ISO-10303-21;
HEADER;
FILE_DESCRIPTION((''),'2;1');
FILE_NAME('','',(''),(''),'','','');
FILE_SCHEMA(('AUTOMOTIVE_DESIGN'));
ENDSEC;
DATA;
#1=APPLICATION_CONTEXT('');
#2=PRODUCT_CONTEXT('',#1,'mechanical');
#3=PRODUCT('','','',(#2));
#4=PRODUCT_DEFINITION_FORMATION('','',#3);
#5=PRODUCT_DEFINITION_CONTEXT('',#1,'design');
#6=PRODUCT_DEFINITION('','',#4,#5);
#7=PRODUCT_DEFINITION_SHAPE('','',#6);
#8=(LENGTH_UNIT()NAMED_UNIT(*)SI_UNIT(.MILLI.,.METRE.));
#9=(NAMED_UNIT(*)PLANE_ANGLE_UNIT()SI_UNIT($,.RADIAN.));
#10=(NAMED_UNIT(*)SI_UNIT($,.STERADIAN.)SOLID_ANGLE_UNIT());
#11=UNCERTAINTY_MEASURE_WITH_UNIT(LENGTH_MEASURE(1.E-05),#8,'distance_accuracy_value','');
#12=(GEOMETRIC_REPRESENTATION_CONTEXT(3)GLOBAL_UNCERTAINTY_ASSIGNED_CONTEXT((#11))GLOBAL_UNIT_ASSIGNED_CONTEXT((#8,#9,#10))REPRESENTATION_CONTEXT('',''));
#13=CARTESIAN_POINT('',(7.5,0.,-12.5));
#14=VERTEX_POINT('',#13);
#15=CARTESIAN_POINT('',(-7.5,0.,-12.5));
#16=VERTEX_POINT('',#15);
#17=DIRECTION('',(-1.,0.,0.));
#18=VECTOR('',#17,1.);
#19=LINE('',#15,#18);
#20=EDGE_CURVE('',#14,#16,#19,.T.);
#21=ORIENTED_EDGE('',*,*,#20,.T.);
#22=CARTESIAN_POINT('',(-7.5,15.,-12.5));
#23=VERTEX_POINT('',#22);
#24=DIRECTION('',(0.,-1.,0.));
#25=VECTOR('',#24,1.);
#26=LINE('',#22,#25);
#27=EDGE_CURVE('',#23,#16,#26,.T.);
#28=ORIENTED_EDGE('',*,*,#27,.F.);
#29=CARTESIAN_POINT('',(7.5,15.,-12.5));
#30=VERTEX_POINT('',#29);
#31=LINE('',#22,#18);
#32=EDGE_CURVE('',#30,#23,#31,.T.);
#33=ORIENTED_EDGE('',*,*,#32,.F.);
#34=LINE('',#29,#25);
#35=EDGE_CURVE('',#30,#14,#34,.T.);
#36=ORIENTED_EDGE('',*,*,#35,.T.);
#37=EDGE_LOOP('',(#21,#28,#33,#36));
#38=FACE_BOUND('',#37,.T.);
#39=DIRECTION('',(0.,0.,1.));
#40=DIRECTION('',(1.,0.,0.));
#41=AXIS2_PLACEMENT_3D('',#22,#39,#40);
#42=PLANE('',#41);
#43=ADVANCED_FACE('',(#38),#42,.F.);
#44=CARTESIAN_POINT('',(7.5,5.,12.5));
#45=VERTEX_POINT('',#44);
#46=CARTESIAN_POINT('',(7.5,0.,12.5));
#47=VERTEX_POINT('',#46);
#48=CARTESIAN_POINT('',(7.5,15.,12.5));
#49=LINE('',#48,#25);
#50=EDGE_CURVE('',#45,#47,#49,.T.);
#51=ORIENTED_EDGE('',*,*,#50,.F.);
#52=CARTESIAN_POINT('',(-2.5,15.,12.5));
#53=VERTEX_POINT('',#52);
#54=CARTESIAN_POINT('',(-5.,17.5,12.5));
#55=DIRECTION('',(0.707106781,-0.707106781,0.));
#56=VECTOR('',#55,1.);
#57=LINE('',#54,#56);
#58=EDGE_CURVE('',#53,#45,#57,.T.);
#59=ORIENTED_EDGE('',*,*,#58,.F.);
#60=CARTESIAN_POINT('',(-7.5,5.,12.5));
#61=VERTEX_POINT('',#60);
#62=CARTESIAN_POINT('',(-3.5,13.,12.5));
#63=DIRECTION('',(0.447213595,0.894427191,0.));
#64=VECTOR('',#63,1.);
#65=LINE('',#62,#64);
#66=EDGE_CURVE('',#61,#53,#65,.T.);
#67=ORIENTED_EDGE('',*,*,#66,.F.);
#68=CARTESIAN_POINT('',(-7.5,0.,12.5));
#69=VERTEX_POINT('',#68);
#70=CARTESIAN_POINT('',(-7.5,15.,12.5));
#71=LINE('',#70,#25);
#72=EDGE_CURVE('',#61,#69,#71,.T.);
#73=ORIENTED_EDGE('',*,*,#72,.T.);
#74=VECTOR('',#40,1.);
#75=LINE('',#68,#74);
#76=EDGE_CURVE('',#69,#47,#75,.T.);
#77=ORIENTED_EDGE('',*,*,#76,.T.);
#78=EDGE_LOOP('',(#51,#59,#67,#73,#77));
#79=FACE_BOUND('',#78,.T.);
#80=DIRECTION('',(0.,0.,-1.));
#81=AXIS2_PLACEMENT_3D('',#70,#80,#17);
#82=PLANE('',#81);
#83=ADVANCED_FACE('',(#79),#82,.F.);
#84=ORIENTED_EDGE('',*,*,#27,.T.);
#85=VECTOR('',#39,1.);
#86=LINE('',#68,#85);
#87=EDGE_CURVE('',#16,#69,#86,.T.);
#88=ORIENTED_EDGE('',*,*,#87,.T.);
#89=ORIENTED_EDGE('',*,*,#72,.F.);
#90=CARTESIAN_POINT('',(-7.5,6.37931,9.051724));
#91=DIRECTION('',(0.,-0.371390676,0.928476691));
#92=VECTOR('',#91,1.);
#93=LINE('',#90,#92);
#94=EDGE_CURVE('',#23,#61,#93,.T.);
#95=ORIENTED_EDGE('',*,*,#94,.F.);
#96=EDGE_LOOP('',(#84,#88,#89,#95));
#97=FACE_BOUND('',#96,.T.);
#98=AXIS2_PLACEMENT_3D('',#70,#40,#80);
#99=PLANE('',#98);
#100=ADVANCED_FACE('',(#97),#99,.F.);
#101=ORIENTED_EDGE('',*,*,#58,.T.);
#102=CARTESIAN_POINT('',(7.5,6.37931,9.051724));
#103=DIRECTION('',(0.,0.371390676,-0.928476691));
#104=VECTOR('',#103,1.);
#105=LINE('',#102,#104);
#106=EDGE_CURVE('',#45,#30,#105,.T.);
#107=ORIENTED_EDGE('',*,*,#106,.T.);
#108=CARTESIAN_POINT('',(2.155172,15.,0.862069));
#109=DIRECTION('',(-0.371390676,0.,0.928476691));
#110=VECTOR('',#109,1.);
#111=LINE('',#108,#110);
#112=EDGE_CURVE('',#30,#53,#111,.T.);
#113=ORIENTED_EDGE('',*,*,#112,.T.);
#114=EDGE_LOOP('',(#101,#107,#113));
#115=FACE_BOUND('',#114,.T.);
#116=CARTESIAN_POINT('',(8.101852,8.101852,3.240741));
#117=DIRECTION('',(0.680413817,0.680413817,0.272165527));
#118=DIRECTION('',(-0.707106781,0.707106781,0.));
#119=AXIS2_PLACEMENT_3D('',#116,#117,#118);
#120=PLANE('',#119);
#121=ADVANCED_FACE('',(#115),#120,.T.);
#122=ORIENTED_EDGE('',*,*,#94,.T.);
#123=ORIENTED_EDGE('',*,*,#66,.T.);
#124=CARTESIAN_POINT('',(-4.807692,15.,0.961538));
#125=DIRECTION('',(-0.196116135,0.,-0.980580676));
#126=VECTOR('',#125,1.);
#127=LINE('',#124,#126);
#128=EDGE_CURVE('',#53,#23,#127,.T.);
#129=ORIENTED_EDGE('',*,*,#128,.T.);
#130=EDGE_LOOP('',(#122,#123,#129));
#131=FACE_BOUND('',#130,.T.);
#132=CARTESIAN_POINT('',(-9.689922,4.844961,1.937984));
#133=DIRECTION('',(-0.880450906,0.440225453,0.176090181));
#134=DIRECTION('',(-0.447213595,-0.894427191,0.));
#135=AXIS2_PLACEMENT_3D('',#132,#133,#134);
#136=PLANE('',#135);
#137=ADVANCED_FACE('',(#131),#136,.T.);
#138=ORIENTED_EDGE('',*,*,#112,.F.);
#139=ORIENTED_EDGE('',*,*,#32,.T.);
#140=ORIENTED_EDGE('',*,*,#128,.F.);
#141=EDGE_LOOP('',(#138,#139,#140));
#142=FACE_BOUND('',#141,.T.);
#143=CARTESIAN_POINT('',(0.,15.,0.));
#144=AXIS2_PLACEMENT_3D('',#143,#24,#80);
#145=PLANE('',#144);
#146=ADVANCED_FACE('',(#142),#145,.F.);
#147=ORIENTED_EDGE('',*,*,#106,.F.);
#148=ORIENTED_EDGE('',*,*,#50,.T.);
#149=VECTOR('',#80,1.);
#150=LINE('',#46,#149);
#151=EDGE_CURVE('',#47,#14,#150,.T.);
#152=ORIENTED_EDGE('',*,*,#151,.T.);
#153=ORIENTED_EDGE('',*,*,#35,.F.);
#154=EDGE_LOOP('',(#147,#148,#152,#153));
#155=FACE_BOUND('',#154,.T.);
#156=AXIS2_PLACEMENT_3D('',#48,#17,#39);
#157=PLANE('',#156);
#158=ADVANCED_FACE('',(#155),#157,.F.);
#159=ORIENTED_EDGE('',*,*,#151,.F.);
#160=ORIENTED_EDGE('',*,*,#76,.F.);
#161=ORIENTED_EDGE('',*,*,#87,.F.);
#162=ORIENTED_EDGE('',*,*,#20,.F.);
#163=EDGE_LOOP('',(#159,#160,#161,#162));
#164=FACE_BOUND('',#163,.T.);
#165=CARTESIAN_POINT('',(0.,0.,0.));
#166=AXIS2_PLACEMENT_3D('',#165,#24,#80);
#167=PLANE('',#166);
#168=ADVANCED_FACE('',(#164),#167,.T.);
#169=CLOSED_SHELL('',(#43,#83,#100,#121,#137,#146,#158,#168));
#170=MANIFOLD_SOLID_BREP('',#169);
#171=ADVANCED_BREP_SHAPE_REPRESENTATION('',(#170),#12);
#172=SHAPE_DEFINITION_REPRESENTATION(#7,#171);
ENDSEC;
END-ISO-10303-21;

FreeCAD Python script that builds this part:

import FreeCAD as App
import Part
import Sketcher

V = App.Vector


def add_polygon(sketch, points):
    """Adds a closed chain of lines whose ends are joined by coincident constraints."""
    first, n = sketch.GeometryCount, len(points)
    for a, b in zip(points, points[1:] + points[:1]):
        sketch.addGeometry(Part.LineSegment(App.Vector(*a, 0), App.Vector(*b, 0)), False)
    for i in range(n):
        sketch.addConstraint(Sketcher.Constraint("Coincident", first + i, 2, first + (i + 1) % n, 1))

doc = App.newDocument("Part")
body = doc.addObject("PartDesign::Body", "Body")

sketch1 = doc.addObject("Sketcher::SketchObject", "Sketch")
body.addObject(sketch1)
sketch1.AttachmentSupport = (doc.XZ_Plane, [""])
sketch1.MapMode = "FlatFace"
add_polygon(sketch1, [(-8, -12), (-8, 12), (8, 12), (8, -12)])
sketch1.addConstraint([
    Sketcher.Constraint("Vertical", 0),
    Sketcher.Constraint("Horizontal", 1),
    Sketcher.Constraint("Vertical", 2),
    Sketcher.Constraint("Horizontal", 3),
    Sketcher.Constraint("Symmetric", 0, 2, 2, 2, -1, 1),
    Sketcher.Constraint("DistanceX", 1, 1, 1, 2, 15.0),
    Sketcher.Constraint("DistanceY", 0, 1, 0, 2, 25.0),
])
pad1 = doc.addObject("PartDesign::Pad", "Pad")
body.addObject(pad1)
pad1.Profile = sketch1
pad1.Length = 15
pad1.Reversed = True

sketch2 = doc.addObject("Sketcher::SketchObject", "Sketch001")
body.addObject(sketch2)
sketch2.Placement = App.Placement(V(-9.689922, 4.844961, 1.937984), App.Rotation(V(0.157499846, -0.078749923, 0.984374039), V(0.447213595, 0.894427191, 0), V(-0.880450906, 0.440225453, 0.176090181), "ZXY"))
add_polygon(sketch2, [(-15, 19), (-15, -8), (18, -8), (18, 19)])
sketch2.addConstraint([
    Sketcher.Constraint("Vertical", 0),
    Sketcher.Constraint("Horizontal", 1),
    Sketcher.Constraint("Vertical", 2),
    Sketcher.Constraint("Horizontal", 3),
    Sketcher.Constraint("DistanceX", 1, 1, 1, 2, 33.46032),
    Sketcher.Constraint("DistanceY", 0, 2, 0, 1, 26.687966),
    Sketcher.Constraint("DistanceY", 0, 2, -1, 1, 8.013329),
    Sketcher.Constraint("DistanceX", 0, 2, -1, 1, 15.163693),
])
pocket1 = doc.addObject("PartDesign::Pocket", "Pocket")
body.addObject(pocket1)
pocket1.Profile = sketch2
pocket1.Length = 15
pocket1.Reversed = True

sketch3 = doc.addObject("Sketcher::SketchObject", "Sketch002")
body.addObject(sketch3)
sketch3.Placement = App.Placement(V(8.101852, 8.101852, 3.240741), App.Rotation(V(-0.19245009, -0.19245009, 0.962250449), V(-0.707106781, 0.707106781, 0), V(-0.680413817, -0.680413817, -0.272165527), "ZXY"))
add_polygon(sketch3, [(-22, 17), (-22, -6), (19, -6), (19, 17)])
sketch3.addConstraint([
    Sketcher.Constraint("Vertical", 0),
    Sketcher.Constraint("Horizontal", 1),
    Sketcher.Constraint("Vertical", 2),
    Sketcher.Constraint("Horizontal", 3),
    Sketcher.Constraint("DistanceX", 1, 1, 1, 2, 41.021028),
    Sketcher.Constraint("DistanceY", 0, 2, 0, 1, 23.235932),
    Sketcher.Constraint("DistanceX", 0, 2, -1, 1, 22.356534),
    Sketcher.Constraint("DistanceY", 0, 2, -1, 1, 6.152125),
])
pocket2 = doc.addObject("PartDesign::Pocket", "Pocket001")
body.addObject(pocket2)
pocket2.Profile = sketch3
pocket2.Length = 15

doc.recompute()
